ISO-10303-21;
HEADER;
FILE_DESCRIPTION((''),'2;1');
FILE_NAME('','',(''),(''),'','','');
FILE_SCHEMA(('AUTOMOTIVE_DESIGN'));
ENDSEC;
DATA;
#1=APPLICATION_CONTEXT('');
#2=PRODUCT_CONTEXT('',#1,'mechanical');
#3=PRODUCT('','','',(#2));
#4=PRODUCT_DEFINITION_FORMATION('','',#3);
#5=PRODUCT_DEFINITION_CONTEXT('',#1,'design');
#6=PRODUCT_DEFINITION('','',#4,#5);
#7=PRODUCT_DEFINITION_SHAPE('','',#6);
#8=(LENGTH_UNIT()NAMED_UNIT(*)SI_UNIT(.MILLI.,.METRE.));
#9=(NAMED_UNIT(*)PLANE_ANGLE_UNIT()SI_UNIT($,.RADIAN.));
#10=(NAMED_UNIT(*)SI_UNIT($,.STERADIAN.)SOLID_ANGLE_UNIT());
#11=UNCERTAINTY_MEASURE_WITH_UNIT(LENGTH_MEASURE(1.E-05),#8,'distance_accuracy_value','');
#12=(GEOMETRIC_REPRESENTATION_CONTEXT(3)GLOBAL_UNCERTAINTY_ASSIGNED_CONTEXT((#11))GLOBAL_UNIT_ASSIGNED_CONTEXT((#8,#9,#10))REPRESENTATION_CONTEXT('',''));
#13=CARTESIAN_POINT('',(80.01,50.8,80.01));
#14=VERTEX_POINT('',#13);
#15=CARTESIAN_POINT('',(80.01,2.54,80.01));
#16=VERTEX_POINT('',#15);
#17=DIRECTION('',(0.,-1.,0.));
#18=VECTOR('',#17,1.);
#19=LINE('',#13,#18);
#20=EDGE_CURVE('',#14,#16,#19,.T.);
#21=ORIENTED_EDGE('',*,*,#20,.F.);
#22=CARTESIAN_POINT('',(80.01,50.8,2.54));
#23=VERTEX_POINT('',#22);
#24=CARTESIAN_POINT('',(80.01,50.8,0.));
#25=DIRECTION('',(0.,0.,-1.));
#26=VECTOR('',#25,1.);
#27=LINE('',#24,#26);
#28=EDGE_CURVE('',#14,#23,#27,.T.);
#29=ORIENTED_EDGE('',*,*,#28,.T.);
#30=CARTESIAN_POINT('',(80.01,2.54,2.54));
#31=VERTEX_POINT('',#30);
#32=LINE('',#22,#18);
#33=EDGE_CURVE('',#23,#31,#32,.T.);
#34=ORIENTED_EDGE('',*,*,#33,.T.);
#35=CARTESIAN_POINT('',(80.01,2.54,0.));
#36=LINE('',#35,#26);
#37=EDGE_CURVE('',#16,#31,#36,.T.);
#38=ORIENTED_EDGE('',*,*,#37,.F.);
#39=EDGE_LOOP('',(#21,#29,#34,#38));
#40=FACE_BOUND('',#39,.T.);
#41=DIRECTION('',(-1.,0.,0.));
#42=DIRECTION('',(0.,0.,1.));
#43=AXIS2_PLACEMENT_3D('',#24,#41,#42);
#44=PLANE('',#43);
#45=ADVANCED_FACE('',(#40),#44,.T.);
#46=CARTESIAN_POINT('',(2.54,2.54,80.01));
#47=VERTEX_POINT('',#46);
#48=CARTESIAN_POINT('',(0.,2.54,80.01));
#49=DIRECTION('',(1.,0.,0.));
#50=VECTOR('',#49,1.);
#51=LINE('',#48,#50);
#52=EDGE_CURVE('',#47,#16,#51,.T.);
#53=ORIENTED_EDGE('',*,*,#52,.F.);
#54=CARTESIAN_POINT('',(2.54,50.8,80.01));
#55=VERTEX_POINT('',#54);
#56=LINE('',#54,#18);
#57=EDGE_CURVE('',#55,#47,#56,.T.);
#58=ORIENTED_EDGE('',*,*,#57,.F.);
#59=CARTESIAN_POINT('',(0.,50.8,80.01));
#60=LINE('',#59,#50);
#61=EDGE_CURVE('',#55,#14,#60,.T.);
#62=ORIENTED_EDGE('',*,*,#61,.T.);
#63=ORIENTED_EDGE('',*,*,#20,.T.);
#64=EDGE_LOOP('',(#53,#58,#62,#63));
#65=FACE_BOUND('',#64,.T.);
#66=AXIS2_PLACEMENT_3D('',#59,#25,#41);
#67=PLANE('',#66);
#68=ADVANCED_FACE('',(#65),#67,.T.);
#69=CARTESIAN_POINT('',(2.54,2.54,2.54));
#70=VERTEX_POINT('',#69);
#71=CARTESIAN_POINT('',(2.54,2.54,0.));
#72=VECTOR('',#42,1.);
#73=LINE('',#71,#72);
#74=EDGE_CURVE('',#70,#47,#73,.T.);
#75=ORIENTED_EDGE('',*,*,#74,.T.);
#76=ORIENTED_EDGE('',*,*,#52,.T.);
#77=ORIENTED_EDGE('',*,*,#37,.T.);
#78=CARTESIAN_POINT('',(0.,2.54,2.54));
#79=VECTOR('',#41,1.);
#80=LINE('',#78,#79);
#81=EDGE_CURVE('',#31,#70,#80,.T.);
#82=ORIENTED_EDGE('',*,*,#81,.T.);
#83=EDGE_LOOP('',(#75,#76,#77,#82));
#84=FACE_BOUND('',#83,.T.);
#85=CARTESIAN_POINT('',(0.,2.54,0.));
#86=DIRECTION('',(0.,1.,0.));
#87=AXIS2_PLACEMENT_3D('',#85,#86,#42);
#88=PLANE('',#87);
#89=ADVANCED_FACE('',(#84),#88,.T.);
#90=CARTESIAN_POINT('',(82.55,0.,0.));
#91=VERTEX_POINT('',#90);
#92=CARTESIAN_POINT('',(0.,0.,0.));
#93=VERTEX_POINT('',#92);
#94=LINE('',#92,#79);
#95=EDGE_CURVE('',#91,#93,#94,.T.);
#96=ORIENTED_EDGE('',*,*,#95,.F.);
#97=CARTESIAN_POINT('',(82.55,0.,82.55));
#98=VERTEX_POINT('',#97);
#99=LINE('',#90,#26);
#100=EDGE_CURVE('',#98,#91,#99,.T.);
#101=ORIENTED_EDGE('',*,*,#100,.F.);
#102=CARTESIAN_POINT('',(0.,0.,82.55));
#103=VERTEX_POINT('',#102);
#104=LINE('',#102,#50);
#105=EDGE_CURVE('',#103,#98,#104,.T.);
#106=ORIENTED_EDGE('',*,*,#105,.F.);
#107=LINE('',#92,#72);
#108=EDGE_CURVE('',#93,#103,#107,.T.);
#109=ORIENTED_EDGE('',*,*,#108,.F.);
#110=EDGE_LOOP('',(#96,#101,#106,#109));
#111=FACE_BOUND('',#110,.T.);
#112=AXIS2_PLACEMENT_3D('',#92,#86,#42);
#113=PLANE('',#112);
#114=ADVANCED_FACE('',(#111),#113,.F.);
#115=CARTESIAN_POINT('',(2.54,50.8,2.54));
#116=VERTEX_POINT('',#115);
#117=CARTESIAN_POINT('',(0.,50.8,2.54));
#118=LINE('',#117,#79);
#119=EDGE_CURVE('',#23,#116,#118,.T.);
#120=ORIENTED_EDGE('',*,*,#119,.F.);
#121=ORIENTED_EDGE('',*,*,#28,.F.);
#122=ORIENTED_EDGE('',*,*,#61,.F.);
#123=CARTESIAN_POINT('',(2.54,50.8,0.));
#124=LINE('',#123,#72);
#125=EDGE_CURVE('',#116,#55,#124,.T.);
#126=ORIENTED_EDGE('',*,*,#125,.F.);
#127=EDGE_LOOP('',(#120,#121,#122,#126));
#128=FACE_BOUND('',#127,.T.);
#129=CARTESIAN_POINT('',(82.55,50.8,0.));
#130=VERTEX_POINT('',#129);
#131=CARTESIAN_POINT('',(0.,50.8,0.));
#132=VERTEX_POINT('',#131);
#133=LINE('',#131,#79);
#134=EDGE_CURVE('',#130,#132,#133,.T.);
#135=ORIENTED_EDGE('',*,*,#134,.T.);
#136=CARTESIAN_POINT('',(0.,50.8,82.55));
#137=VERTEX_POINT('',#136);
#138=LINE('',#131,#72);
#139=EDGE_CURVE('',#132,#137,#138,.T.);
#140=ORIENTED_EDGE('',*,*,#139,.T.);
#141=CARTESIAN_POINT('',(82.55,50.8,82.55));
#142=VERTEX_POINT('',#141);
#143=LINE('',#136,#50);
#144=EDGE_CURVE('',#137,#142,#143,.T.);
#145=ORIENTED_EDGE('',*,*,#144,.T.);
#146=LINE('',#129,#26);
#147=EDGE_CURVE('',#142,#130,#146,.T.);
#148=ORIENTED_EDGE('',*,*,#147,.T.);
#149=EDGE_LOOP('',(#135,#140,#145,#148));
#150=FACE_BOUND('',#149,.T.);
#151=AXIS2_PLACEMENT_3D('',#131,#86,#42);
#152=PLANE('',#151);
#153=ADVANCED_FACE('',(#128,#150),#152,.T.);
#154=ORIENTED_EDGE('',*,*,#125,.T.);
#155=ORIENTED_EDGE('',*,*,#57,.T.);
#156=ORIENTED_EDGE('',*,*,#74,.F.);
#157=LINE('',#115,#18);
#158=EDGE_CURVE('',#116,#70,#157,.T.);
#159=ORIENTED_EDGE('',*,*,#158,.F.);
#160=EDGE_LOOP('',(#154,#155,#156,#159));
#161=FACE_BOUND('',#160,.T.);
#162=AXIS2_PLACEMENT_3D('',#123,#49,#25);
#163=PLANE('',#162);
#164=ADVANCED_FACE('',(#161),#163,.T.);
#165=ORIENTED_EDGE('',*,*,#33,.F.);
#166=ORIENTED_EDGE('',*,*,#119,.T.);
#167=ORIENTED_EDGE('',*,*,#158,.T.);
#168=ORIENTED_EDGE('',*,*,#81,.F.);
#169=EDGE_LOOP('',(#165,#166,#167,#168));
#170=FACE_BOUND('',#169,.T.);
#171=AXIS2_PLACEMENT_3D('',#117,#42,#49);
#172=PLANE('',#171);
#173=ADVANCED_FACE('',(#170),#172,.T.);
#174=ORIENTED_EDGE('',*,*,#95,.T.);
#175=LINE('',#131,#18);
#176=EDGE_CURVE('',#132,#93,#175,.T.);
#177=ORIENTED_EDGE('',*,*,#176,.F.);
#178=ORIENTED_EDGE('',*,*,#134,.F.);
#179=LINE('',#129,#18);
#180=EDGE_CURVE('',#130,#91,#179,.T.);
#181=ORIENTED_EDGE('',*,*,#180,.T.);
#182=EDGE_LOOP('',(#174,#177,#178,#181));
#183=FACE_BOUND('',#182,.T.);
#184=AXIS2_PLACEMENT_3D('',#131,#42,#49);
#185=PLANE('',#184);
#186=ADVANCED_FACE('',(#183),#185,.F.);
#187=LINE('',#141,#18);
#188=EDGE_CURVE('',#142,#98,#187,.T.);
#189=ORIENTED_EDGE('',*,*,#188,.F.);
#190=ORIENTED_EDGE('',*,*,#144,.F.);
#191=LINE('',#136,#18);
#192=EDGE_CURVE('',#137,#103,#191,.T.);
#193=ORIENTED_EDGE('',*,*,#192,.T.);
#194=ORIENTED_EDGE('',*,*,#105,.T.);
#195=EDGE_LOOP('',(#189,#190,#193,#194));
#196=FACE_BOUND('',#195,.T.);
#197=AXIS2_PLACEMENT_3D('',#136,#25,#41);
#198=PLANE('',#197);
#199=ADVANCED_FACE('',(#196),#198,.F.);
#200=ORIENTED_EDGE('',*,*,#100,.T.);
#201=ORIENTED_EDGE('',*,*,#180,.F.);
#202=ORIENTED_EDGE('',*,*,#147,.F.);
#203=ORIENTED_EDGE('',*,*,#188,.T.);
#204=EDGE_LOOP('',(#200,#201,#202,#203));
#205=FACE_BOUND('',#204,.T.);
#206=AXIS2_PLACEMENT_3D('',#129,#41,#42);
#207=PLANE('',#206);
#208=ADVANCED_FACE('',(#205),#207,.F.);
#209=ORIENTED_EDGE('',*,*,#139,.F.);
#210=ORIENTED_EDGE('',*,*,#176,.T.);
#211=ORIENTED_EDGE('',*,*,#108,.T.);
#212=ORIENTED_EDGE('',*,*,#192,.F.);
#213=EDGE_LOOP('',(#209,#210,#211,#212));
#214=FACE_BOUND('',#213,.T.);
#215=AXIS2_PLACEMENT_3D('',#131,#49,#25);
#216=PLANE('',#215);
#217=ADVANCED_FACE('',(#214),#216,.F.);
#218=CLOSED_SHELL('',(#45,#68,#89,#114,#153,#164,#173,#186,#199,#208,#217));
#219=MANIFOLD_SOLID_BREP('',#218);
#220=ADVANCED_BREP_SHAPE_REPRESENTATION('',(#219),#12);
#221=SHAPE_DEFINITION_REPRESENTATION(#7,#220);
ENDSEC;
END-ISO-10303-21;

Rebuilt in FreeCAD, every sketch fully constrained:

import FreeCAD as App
import Part
import Sketcher
from FreeCAD import Vector
Q = App.Units.Quantity


def faces_at(feature, points):
    """Names of the faces that lie closest to the given points."""
    faces = feature.Shape.Faces
    near = lambda p: min(range(len(faces)), key=lambda i: faces[i].distToShape(Part.Vertex(*p))[0])
    return sorted({f"Face{near(p) + 1}" for p in points})

doc = App.newDocument("Part")
body = doc.addObject("PartDesign::Body", "Body")

sketch1 = doc.addObject("Sketcher::SketchObject", "Sketch")
body.addObject(sketch1)
sketch1.AttachmentSupport = (doc.XZ_Plane, [""])
sketch1.MapMode = "FlatFace"
sketch1.addGeometry([
    Part.LineSegment(Vector(0, 0, 0), Vector(0, 83, 0)),
    Part.LineSegment(Vector(0, 83, 0), Vector(83, 83, 0)),
    Part.LineSegment(Vector(83, 83, 0), Vector(83, 0, 0)),
    Part.LineSegment(Vector(83, 0, 0), Vector(0, 0, 0)),
], False)
sketch1.addConstraint([
    Sketcher.Constraint("Coincident", 0, 2, 1, 1),
    Sketcher.Constraint("Coincident", 1, 2, 2, 1),
    Sketcher.Constraint("Coincident", 2, 2, 3, 1),
    Sketcher.Constraint("Coincident", 3, 2, 0, 1),
    Sketcher.Constraint("Vertical", 0),
    Sketcher.Constraint("Horizontal", 1),
    Sketcher.Constraint("Vertical", 2),
    Sketcher.Constraint("Horizontal", 3),
    Sketcher.Constraint("Coincident", 3, 2, -1, 1),
    Sketcher.Constraint("Equal", 3, 0),
    Sketcher.Constraint("DistanceX", 1, 1, 1, 2, Q("3.25 in")),
])
pad1 = doc.addObject("PartDesign::Pad", "Pad")
body.addObject(pad1)
pad1.Profile = sketch1
pad1.Length = Q("2 in")
pad1.Reversed = True
doc.recompute()

thickness = doc.addObject("PartDesign::Thickness", "Thickness")
body.addObject(thickness)
thickness.Base = (pad1, faces_at(pad1, [(41.275, 50.8, 41.275)]))
thickness.Value = Q("0.1 in")
thickness.Reversed = True
thickness.Join = "Intersection"

doc.recompute()
